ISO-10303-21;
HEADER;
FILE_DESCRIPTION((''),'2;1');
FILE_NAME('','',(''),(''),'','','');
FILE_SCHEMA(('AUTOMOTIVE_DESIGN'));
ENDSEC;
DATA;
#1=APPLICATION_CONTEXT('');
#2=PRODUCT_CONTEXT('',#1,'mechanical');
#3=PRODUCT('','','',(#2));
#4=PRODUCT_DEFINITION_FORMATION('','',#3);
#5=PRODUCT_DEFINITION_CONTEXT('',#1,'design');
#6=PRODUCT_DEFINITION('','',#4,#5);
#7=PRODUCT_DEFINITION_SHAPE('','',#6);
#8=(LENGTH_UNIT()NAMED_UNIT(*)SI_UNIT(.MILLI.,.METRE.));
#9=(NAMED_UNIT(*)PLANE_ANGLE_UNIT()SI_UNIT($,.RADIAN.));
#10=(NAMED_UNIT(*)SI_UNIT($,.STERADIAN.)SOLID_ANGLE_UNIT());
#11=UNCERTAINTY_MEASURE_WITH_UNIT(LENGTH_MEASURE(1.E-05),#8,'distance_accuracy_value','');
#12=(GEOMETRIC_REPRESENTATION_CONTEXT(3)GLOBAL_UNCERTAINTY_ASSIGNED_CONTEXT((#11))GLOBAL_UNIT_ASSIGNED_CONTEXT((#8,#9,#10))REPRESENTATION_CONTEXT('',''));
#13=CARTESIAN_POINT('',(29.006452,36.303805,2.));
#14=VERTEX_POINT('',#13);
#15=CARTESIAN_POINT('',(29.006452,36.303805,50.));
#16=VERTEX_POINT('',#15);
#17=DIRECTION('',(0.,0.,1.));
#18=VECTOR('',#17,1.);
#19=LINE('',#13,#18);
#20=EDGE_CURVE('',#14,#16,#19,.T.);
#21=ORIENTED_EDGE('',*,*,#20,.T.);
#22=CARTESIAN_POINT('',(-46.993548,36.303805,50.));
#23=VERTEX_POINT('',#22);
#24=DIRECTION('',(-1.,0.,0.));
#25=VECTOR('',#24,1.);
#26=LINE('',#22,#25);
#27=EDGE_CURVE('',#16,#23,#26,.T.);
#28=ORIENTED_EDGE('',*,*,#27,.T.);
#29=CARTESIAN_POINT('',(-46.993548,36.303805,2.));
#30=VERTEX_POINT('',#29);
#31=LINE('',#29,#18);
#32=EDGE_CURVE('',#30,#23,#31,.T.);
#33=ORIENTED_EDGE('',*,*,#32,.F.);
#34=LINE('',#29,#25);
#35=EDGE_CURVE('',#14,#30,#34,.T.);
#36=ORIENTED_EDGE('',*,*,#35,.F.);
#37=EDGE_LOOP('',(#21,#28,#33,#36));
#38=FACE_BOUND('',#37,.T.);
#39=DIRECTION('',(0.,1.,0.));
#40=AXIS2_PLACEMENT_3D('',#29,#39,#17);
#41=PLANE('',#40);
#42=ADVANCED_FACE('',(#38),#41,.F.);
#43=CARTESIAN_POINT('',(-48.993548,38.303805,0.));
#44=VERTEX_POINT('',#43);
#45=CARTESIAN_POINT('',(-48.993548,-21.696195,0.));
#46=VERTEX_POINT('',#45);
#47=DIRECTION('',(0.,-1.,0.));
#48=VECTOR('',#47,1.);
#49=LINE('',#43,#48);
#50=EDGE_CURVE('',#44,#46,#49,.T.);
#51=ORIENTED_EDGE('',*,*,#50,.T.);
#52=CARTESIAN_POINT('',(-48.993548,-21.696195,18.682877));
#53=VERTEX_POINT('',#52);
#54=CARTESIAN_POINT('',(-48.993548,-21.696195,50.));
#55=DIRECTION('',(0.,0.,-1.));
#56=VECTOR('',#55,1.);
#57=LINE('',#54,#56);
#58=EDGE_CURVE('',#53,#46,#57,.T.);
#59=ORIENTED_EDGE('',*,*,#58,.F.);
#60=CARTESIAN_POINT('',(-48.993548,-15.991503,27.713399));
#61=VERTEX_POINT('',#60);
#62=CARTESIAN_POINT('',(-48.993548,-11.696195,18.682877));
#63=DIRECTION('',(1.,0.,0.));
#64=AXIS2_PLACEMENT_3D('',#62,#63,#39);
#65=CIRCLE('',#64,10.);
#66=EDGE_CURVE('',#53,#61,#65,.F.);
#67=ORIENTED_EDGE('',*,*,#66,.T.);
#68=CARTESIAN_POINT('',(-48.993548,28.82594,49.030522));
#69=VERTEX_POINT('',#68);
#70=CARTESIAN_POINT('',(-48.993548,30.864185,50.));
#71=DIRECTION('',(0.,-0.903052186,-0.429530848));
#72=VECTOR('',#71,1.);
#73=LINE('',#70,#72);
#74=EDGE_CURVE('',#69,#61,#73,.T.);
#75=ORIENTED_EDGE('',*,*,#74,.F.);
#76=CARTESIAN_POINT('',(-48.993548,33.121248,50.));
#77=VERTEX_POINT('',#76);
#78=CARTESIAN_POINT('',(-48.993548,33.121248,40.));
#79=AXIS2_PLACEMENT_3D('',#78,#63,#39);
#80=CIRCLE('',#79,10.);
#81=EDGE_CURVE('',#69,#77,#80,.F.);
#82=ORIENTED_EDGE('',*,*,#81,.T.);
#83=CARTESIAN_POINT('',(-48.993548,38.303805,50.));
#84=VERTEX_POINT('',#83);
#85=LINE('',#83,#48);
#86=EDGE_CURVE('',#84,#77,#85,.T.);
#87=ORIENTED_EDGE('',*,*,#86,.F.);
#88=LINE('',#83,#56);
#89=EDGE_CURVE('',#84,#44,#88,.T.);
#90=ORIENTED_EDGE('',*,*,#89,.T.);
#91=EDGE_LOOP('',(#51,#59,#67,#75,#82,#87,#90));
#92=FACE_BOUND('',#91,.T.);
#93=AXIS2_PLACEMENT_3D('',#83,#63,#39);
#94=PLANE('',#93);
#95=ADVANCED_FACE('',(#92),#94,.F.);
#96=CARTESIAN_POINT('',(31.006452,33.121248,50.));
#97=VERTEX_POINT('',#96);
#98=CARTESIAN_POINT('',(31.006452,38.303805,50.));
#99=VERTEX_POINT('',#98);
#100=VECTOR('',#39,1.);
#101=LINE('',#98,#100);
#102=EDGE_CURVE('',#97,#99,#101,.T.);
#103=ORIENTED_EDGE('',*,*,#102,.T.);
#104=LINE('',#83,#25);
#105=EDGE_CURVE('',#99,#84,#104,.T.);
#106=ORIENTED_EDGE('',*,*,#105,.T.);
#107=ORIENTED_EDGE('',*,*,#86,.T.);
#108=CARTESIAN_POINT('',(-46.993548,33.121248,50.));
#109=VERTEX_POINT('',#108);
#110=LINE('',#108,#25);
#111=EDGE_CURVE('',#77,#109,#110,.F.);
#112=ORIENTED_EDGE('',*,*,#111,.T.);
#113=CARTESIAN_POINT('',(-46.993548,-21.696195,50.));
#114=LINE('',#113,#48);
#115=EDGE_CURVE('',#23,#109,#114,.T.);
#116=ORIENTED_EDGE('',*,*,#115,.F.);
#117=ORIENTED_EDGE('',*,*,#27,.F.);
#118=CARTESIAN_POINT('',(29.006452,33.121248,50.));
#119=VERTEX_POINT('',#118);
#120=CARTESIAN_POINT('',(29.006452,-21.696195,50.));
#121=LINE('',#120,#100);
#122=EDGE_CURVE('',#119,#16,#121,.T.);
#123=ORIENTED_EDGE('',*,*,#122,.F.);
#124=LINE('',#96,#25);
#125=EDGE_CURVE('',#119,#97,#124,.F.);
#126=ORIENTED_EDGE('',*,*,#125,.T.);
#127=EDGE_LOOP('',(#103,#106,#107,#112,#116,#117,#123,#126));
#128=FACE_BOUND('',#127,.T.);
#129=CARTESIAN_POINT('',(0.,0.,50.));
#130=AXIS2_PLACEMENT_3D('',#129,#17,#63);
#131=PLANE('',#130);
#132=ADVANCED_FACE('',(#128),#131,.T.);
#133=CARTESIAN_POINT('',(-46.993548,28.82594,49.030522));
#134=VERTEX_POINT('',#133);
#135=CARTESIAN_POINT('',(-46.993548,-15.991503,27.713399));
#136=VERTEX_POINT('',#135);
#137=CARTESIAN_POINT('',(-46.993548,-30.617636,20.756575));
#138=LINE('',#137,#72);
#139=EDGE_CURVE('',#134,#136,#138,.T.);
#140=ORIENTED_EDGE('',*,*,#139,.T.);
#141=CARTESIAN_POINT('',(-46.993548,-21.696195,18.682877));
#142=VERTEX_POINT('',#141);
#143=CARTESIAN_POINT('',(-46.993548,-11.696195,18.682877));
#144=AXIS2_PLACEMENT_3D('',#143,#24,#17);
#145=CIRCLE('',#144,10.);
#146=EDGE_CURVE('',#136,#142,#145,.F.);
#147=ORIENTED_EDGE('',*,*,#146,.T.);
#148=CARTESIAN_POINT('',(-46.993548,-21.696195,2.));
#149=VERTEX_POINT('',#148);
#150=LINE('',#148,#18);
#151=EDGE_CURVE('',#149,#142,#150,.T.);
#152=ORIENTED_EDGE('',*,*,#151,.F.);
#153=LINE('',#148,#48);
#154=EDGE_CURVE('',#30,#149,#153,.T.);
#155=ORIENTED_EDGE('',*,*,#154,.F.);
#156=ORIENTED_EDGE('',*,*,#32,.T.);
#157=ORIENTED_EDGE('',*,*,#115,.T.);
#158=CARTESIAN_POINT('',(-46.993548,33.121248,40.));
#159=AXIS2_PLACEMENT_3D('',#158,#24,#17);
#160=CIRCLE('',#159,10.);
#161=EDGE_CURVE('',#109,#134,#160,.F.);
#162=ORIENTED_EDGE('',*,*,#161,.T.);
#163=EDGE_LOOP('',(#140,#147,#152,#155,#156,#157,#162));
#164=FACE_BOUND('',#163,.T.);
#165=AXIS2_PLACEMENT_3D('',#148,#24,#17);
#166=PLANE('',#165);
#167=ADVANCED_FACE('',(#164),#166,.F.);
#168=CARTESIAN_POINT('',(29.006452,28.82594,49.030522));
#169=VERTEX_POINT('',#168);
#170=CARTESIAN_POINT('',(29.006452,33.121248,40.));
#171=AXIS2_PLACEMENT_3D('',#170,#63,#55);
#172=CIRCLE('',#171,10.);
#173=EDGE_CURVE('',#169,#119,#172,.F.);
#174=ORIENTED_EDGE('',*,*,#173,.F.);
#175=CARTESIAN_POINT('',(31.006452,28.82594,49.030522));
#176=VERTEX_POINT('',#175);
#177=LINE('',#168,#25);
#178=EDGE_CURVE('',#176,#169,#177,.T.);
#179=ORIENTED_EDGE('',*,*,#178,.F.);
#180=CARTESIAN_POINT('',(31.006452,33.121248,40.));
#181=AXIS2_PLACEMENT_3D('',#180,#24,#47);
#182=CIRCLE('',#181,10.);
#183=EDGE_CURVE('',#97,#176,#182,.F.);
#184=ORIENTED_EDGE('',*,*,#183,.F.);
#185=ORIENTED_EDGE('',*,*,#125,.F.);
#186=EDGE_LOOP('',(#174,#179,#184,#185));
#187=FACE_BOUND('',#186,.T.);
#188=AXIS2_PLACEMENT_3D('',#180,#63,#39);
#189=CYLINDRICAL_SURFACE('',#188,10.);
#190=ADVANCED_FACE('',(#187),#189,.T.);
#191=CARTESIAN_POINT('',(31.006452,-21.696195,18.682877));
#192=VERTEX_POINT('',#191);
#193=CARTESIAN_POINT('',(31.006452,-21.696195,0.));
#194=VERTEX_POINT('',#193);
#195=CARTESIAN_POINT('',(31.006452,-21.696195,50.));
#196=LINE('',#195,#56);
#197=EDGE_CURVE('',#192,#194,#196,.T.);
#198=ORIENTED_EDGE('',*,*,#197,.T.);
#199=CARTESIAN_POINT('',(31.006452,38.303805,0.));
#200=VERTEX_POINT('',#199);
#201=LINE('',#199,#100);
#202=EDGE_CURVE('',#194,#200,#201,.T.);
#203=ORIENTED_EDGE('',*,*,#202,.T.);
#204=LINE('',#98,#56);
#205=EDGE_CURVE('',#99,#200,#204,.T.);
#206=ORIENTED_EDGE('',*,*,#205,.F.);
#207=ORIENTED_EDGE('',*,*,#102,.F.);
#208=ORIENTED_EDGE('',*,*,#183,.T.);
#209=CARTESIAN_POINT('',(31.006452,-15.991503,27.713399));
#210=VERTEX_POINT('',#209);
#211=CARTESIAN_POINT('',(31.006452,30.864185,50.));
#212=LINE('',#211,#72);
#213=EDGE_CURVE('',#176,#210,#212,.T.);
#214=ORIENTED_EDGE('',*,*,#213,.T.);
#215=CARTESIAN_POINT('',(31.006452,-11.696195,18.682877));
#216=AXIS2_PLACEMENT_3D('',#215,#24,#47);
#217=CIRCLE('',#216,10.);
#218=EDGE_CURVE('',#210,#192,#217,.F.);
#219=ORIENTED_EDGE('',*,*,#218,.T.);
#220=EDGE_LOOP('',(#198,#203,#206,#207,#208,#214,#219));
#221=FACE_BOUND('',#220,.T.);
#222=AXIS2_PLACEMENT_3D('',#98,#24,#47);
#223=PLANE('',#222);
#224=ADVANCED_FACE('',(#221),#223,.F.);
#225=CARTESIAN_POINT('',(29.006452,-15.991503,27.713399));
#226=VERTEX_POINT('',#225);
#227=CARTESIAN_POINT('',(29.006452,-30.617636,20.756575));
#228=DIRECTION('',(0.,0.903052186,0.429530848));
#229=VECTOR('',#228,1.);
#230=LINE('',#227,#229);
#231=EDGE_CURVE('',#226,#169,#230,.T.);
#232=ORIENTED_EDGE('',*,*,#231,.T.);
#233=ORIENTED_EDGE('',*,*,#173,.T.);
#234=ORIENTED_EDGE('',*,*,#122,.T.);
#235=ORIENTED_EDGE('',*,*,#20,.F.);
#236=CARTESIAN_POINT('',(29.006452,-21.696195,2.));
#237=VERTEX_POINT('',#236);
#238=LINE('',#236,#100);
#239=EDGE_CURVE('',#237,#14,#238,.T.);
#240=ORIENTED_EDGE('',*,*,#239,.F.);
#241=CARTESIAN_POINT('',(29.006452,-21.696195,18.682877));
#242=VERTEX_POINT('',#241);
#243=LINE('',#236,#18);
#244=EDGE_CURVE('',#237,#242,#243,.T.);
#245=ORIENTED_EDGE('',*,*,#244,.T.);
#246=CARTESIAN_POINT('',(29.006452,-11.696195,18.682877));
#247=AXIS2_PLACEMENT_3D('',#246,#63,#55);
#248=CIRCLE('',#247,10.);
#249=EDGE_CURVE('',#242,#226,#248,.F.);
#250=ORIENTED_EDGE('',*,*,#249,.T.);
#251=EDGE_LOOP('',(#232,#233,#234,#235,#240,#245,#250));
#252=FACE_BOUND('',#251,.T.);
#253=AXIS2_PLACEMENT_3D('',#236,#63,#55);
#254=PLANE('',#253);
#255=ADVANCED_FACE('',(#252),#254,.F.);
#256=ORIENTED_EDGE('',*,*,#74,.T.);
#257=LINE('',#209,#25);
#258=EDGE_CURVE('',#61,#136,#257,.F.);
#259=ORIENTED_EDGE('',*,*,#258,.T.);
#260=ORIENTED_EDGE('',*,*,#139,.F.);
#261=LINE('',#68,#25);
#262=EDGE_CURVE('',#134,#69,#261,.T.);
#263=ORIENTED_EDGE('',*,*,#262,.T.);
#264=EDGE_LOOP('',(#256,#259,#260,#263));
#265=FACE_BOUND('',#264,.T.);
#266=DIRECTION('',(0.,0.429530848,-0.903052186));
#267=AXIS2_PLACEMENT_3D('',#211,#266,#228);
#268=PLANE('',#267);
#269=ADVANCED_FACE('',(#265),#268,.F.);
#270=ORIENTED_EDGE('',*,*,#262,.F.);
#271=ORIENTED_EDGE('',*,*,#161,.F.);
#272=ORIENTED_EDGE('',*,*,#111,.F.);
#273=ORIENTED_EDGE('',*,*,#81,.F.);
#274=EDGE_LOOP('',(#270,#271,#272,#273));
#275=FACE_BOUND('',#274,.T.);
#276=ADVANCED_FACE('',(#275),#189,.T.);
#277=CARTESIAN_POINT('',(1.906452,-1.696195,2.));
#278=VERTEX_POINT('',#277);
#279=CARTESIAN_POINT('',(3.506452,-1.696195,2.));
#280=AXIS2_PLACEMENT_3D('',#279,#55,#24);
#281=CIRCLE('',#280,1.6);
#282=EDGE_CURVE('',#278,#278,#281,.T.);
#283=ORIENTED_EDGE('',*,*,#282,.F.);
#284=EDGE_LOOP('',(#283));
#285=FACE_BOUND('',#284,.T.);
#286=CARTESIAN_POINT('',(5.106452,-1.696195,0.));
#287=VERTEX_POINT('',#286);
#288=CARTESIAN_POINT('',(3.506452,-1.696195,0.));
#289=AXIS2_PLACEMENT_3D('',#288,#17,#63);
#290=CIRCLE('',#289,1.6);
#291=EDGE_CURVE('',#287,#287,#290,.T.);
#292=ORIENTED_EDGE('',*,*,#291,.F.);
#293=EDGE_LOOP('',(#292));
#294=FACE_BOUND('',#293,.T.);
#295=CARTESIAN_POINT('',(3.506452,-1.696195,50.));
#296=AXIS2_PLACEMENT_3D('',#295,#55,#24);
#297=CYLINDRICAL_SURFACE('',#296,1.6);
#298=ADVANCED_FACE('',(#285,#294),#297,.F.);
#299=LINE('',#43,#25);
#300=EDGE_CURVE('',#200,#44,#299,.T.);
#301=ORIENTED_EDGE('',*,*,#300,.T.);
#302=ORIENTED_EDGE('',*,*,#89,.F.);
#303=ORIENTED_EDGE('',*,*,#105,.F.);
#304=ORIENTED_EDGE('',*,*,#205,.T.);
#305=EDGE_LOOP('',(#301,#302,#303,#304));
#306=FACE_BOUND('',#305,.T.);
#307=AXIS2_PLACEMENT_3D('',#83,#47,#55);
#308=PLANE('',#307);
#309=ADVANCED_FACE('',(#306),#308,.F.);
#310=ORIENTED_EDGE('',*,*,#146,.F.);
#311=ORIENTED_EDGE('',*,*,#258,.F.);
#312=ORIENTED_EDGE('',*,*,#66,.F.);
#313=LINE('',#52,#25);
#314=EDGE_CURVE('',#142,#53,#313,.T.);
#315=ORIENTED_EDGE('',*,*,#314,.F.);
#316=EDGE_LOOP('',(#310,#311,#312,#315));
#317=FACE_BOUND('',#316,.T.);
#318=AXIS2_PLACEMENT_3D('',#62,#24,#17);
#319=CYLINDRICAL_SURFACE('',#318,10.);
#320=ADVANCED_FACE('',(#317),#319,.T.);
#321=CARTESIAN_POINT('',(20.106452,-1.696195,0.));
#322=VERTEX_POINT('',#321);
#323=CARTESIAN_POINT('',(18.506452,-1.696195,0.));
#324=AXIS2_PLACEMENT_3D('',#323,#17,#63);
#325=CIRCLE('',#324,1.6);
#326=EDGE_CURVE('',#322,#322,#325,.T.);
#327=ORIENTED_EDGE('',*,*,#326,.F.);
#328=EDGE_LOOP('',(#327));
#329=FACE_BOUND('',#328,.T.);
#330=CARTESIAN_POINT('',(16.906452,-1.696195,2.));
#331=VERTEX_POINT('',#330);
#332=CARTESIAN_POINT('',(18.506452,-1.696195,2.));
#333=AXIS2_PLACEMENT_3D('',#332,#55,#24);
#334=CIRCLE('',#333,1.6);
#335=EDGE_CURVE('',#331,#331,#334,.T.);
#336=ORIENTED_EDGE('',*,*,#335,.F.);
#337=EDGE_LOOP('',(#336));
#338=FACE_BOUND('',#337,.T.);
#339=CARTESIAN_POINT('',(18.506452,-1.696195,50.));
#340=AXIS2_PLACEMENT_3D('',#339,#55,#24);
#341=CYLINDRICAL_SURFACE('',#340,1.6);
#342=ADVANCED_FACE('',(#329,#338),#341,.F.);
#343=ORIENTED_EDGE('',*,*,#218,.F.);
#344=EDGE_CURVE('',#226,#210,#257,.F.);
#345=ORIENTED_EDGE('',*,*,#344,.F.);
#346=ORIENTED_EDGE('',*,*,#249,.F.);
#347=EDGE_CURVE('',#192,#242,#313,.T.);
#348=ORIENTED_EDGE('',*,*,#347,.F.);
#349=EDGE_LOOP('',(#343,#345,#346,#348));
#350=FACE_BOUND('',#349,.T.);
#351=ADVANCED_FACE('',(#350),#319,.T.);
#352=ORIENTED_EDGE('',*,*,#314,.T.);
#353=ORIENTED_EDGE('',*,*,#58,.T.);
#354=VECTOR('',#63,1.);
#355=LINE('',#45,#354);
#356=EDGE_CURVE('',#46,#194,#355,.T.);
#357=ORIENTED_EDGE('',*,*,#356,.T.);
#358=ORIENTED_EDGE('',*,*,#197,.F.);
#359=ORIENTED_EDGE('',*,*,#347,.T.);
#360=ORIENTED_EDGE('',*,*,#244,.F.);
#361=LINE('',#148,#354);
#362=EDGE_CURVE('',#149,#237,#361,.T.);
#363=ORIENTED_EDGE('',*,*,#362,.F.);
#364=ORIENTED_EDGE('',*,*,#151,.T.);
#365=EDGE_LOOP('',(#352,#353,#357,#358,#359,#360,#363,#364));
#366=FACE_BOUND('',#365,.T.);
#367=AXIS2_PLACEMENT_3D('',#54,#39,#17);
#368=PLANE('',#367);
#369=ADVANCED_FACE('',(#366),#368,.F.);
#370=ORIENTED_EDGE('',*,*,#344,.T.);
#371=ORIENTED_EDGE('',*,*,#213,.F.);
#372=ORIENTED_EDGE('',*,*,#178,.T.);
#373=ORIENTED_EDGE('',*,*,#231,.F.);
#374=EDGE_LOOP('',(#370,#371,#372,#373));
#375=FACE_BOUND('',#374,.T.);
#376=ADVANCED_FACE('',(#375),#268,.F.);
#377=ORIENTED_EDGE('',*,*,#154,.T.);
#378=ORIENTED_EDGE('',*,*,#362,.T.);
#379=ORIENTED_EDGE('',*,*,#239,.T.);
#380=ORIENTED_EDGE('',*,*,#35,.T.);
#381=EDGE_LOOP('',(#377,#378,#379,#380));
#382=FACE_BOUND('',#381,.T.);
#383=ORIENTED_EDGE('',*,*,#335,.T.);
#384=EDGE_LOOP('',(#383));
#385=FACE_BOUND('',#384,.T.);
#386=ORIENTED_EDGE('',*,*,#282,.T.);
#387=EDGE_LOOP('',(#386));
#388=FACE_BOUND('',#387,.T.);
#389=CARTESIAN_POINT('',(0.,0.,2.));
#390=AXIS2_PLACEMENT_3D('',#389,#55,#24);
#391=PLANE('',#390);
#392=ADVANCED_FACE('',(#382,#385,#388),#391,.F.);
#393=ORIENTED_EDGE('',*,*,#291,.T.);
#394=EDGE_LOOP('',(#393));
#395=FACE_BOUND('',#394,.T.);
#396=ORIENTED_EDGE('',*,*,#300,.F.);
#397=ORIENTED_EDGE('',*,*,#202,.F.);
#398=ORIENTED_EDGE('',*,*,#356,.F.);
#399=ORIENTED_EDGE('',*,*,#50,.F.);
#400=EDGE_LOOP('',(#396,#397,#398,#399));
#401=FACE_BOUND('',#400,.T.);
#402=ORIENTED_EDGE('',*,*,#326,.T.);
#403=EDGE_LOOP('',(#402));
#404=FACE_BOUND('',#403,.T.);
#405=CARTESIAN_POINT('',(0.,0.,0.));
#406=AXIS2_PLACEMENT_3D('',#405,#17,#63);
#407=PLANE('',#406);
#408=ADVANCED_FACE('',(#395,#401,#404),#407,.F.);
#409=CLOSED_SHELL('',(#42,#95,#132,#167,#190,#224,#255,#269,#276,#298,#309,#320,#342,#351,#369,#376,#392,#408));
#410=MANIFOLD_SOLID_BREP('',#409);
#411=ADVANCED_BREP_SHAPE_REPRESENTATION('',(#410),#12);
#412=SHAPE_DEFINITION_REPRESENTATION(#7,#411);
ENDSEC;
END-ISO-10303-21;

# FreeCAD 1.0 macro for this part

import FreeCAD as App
import Part
import Sketcher

V = App.Vector


def edges_at(feature, points):
    """Names of the edges that pass closest to the given points."""
    edges = feature.Shape.Edges
    near = lambda p: min(range(len(edges)), key=lambda i: edges[i].distToShape(Part.Vertex(*p))[0])
    return sorted({f"Edge{near(p) + 1}" for p in points})

doc = App.newDocument("Part")
body = doc.addObject("PartDesign::Body", "Body")

# Sketch on XY plane
sketch1 = doc.addObject("Sketcher::SketchObject", "Sketch")
body.addObject(sketch1)
sketch1.AttachmentSupport = (doc.XY_Plane, [""])
sketch1.MapMode = "FlatFace"
sketch1.addGeometry([
    Part.LineSegment(V(-49, 38.3, 0), V(-49, -21.7, 0)),  # 0
    Part.LineSegment(V(-49, -21.7, 0), V(31, -21.7, 0)),  # 1
    Part.LineSegment(V(31, -21.7, 0), V(31, 38.3, 0)),  # 2
    Part.LineSegment(V(31, 38.3, 0), V(-49, 38.3, 0)),  # 3
    Part.Circle(V(3.5, -1.7, 0), V(0, 0, 1), 1.6),  # 4
    Part.Circle(V(18.5, -1.7, 0), V(0, 0, 1), 1.6),  # 5
], False)
sketch1.addConstraint([
    Sketcher.Constraint("Coincident", 0, 2, 1, 1),
    Sketcher.Constraint("Coincident", 1, 2, 2, 1),
    Sketcher.Constraint("Coincident", 2, 2, 3, 1),
    Sketcher.Constraint("Coincident", 3, 2, 0, 1),
    Sketcher.Constraint("Vertical", 0),
    Sketcher.Constraint("Horizontal", 1),
    Sketcher.Constraint("Vertical", 2),
    Sketcher.Constraint("Horizontal", 3),
    Sketcher.Constraint("Equal", 4, 5),
    Sketcher.Constraint("Horizontal", 4, 3, 5, 3),
    Sketcher.Constraint("Diameter", 4, 3.2),
    Sketcher.Constraint("DistanceX", 1, 1, 1, 2, 80.0),
    Sketcher.Constraint("DistanceY", 0, 2, 0, 1, 60.0),
    Sketcher.Constraint("DistanceX", 4, 3, 5, 3, 15.0),
    Sketcher.Constraint("DistanceY", 0, 2, 4, 3, 20.0),
    Sketcher.Constraint("DistanceX", 0, 2, 4, 3, 52.5),
    Sketcher.Constraint("DistanceX", -1, 1, 4, 3, 3.506452),
    Sketcher.Constraint("DistanceY", 4, 3, -1, 1, 1.696195),
])
pad1 = doc.addObject("PartDesign::Pad", "Pad")
body.addObject(pad1)
pad1.Profile = sketch1
pad1.Length = 50

# Sketch on XY plane
sketch2 = doc.addObject("Sketcher::SketchObject", "Sketch001")
body.addObject(sketch2)
sketch2.AttachmentSupport = (doc.XY_Plane, [""])
sketch2.MapMode = "FlatFace"
sketch2.AttachmentOffset = App.Placement(V(0, 0, 50), App.Rotation())
sketch2.addGeometry([
    Part.LineSegment(V(-47, 36, 0), V(-47, -22, 0)),
    Part.LineSegment(V(-47, -22, 0), V(29, -22, 0)),
    Part.LineSegment(V(29, -22, 0), V(29, 36, 0)),
    Part.LineSegment(V(29, 36, 0), V(-47, 36, 0)),
], False)
sketch2.addConstraint([
    Sketcher.Constraint("Coincident", 0, 2, 1, 1),
    Sketcher.Constraint("Coincident", 1, 2, 2, 1),
    Sketcher.Constraint("Coincident", 2, 2, 3, 1),
    Sketcher.Constraint("Coincident", 3, 2, 0, 1),
    Sketcher.Constraint("Vertical", 0),
    Sketcher.Constraint("Horizontal", 1),
    Sketcher.Constraint("Vertical", 2),
    Sketcher.Constraint("Horizontal", 3),
    Sketcher.Constraint("DistanceX", 1, 1, 1, 2, 76.0),
    Sketcher.Constraint("DistanceY", 0, 2, 0, 1, 58.0),
    Sketcher.Constraint("DistanceX", 0, 2, -1, 1, 46.993548),
    Sketcher.Constraint("DistanceY", 0, 2, -1, 1, 21.696195),
])
pocket1 = doc.addObject("PartDesign::Pocket", "Pocket")
body.addObject(pocket1)
pocket1.Profile = sketch2
pocket1.Length = 48

# Sketch on YZ plane
sketch3 = doc.addObject("Sketcher::SketchObject", "Sketch002")
body.addObject(sketch3)
sketch3.AttachmentSupport = (doc.YZ_Plane, [""])
sketch3.MapMode = "FlatFace"
sketch3.AttachmentOffset = App.Placement(V(0, 0, -48.993548), App.Rotation())
sketch3.addGeometry([
    Part.LineSegment(V(31, 50, 0), V(-22, 25, 0)),
    Part.LineSegment(V(-22, 25, 0), V(-22, 50, 0)),
    Part.LineSegment(V(-22, 50, 0), V(31, 50, 0)),
], False)
sketch3.addConstraint([
    Sketcher.Constraint("Coincident", 0, 2, 1, 1),
    Sketcher.Constraint("Coincident", 1, 2, 2, 1),
    Sketcher.Constraint("Coincident", 2, 2, 0, 1),
    Sketcher.Constraint("Vertical", 1),
    Sketcher.Constraint("Horizontal", 2),
    Sketcher.Constraint("DistanceY", 1, 1, 1, 2, 25.0),
    Sketcher.Constraint("DistanceY", -1, 1, 0, 2, 25.0),
    Sketcher.Constraint("DistanceX", 2, 1, 2, 2, 52.56038),
    Sketcher.Constraint("DistanceX", 0, 2, -1, 1, 21.696195),
])
pocket2 = doc.addObject("PartDesign::Pocket", "Pocket001")
body.addObject(pocket2)
pocket2.Profile = sketch3
pocket2.Type = "ThroughAll"
pocket2.Reversed = True
doc.recompute()

fillet = doc.addObject("PartDesign::Fillet", "Fillet")
body.addObject(fillet)
fillet.Base = (pocket2, edges_at(pocket2, [
    (-47.994, 30.864, 50),
    (30.006, 30.864, 50),
    (-47.994, -21.696, 25),
    (30.006, -21.696, 25),
]))
fillet.Radius = 10

doc.recompute()
